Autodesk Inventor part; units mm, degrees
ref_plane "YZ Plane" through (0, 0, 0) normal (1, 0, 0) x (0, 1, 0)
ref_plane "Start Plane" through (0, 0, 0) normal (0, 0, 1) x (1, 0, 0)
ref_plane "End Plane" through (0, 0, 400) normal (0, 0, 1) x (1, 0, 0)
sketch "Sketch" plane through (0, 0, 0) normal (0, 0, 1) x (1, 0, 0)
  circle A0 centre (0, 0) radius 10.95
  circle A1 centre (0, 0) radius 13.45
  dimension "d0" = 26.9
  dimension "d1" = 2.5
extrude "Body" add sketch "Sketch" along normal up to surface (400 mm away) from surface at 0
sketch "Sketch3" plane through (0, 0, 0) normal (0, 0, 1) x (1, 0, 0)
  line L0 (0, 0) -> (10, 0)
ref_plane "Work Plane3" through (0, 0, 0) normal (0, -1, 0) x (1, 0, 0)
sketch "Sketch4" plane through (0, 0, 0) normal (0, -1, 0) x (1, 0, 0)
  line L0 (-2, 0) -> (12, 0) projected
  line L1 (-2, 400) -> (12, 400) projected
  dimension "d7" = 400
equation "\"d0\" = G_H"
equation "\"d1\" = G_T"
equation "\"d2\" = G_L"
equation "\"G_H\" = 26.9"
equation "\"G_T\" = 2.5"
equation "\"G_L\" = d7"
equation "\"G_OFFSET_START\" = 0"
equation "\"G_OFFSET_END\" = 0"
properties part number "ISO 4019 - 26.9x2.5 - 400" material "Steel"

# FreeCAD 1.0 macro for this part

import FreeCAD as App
import Part
import Sketcher

V = App.Vector

doc = App.newDocument("Part")
body = doc.addObject("PartDesign::Body", "Body")

sketch1 = body.newObject("Sketcher::SketchObject", "Sketch")
sketch1.AttachmentSupport = (doc.getObject("XY_Plane"), [""])
sketch1.MapMode = "FlatFace"
sketch1.addGeometry([
    Part.Circle(V(0, 0, 0), V(0, 0, 1), 13),
    Part.Circle(V(0, 0, 0), V(0, 0, 1), 11),
], False)
sketch1.addConstraint([
    Sketcher.Constraint("Coincident", 0, 3, -1, 1),
    Sketcher.Constraint("Coincident", 1, 3, -1, 1),
    Sketcher.Constraint("Diameter", 0, 26.9),
    Sketcher.Constraint("Diameter", 1, 21.9),
])
pad1 = body.newObject("PartDesign::Pad", "Pad")
pad1.Profile = sketch1
pad1.Length = 400

doc.recompute()
